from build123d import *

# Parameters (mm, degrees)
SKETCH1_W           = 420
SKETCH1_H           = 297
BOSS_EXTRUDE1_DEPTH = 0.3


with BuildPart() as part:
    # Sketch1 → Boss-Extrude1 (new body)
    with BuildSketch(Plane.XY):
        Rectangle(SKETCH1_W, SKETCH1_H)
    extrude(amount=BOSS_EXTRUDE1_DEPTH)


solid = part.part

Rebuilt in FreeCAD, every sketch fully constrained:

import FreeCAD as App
import Part
import Sketcher
Q = App.Units.Quantity

doc = App.newDocument("Part")
body = doc.addObject("PartDesign::Body", "Body")

sketch1 = doc.addObject("Sketcher::SketchObject", "Sketch")
body.addObject(sketch1)
sketch1.AttachmentSupport = (doc.XY_Plane, [""])
sketch1.MapMode = "FlatFace"
sketch1.addGeometry([
    Part.LineSegment(App.Vector(-210, 148.5, 0), App.Vector(-210, -148.5, 0)),
    Part.LineSegment(App.Vector(-210, -148.5, 0), App.Vector(210, -148.5, 0)),
    Part.LineSegment(App.Vector(210, -148.5, 0), App.Vector(210, 148.5, 0)),
    Part.LineSegment(App.Vector(210, 148.5, 0), App.Vector(-210, 148.5, 0)),
], False)
sketch1.addConstraint([
    Sketcher.Constraint("Coincident", 0, 2, 1, 1),
    Sketcher.Constraint("Coincident", 1, 2, 2, 1),
    Sketcher.Constraint("Coincident", 2, 2, 3, 1),
    Sketcher.Constraint("Coincident", 3, 2, 0, 1),
    Sketcher.Constraint("Vertical", 0),
    Sketcher.Constraint("Horizontal", 1),
    Sketcher.Constraint("Vertical", 2),
    Sketcher.Constraint("Horizontal", 3),
    Sketcher.Constraint("Symmetric", 0, 2, 2, 2, -1, 1),
    Sketcher.Constraint("DistanceX", 1, 1, 1, 2, Q("420 mm")),
    Sketcher.Constraint("DistanceY", 0, 2, 0, 1, Q("297 mm")),
])
pad1 = doc.addObject("PartDesign::Pad", "Pad")
body.addObject(pad1)
pad1.Profile = sketch1
pad1.Length = 0.3

doc.recompute()
